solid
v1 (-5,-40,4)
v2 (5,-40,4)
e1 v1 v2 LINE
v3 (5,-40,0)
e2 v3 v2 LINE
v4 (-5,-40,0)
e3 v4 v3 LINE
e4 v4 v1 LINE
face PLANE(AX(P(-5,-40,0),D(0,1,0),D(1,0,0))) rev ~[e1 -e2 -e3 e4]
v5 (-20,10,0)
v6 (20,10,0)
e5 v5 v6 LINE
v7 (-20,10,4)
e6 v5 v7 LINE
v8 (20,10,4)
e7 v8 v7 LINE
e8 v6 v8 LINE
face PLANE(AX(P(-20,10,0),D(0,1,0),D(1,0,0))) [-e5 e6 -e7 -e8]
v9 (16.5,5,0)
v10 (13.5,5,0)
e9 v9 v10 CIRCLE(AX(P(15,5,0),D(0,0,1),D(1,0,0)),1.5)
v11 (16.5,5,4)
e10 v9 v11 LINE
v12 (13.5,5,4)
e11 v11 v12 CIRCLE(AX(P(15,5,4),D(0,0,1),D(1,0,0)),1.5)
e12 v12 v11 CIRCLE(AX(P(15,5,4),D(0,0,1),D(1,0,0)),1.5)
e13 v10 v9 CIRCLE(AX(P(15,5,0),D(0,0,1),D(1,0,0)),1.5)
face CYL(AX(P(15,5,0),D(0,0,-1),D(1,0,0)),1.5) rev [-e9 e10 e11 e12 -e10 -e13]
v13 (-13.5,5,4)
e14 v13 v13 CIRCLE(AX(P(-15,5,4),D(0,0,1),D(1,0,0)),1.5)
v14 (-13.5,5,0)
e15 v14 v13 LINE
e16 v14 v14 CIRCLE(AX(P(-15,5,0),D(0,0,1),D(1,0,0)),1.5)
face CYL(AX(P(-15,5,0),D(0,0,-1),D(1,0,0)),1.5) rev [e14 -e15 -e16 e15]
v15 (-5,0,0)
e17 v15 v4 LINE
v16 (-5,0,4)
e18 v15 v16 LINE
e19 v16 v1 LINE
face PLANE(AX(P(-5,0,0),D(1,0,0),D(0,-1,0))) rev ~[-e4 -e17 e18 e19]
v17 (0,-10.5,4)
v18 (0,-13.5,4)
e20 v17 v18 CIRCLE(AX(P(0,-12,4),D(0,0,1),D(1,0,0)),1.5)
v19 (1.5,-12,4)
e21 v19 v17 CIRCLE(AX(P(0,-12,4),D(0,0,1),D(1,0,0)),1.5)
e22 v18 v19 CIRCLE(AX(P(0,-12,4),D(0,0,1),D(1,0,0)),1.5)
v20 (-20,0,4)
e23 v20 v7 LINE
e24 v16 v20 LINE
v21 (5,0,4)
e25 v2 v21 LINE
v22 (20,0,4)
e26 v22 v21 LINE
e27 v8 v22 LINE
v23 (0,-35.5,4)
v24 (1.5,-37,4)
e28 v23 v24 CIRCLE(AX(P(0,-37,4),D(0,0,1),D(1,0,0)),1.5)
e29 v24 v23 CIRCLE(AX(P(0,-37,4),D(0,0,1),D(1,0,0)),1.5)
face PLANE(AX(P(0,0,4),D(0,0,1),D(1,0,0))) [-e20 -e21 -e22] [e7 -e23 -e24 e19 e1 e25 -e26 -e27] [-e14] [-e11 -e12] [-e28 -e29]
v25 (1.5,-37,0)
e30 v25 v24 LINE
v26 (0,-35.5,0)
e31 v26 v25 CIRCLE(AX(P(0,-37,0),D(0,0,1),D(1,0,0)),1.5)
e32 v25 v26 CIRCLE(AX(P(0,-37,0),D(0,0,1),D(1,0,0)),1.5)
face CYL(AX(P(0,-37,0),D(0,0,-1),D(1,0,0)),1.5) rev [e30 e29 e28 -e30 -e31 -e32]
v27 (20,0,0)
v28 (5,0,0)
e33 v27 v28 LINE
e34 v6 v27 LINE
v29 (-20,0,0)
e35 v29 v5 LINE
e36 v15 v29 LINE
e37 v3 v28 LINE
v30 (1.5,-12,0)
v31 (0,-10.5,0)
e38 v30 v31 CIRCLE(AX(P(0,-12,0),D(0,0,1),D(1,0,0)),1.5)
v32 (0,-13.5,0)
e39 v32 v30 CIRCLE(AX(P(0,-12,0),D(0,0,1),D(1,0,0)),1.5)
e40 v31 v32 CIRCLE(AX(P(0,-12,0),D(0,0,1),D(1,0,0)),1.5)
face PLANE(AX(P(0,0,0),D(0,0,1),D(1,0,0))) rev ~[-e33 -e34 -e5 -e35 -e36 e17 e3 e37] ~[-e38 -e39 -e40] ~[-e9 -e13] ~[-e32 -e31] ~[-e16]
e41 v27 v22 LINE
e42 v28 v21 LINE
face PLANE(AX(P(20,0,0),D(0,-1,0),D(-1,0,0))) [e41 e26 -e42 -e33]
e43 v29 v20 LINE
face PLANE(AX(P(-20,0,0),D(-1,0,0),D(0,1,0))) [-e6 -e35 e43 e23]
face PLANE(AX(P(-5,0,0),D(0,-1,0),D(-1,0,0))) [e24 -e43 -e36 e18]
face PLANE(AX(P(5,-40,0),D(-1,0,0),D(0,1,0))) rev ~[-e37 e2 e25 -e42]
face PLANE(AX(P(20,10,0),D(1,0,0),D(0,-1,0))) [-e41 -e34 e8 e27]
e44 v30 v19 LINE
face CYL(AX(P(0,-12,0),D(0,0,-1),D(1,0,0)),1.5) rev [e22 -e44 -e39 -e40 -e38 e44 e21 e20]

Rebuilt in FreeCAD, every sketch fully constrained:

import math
import FreeCAD as App
import Part
import Sketcher

V = App.Vector


def add_polygon(sketch, points):
    """Adds a closed chain of lines whose ends are joined by coincident constraints."""
    first, n = sketch.GeometryCount, len(points)
    for a, b in zip(points, points[1:] + points[:1]):
        sketch.addGeometry(Part.LineSegment(App.Vector(*a, 0), App.Vector(*b, 0)), False)
    for i in range(n):
        sketch.addConstraint(Sketcher.Constraint("Coincident", first + i, 2, first + (i + 1) % n, 1))

doc = App.newDocument("Part")
body = doc.addObject("PartDesign::Body", "Body")

# Sketch on XY plane
sketch1 = body.newObject("Sketcher::SketchObject", "Sketch")
sketch1.AttachmentSupport = (doc.getObject("XY_Plane"), [""])
sketch1.MapMode = "FlatFace"
add_polygon(sketch1, [(-20, 0), (-5, 0), (-5, -40), (5, -40), (5, 0), (20, 0), (20, 10), (-20, 10)])  # lines 0-7
sketch1.addGeometry(Part.Circle(V(-15, 5, 0), V(0, 0, 1), 1.5), False)  # 8
sketch1.addGeometry(Part.Circle(V(0, -37, 0), V(0, 0, 1), 1.5), False)  # 9
sketch1.addGeometry(Part.ArcOfCircle(Part.Circle(V(0, -12, 0), V(0, 0, 1), 1.5), math.radians(90), math.radians(270)), False)  # 10
sketch1.addGeometry(Part.ArcOfCircle(Part.Circle(V(0, -12, 0), V(0, 0, 1), 1.5), math.radians(-90), math.radians(90)), False)  # 11
sketch1.addGeometry(Part.Circle(V(15, 5, 0), V(0, 0, 1), 1.5), False)  # 12
sketch1.addConstraint([
    Sketcher.Constraint("Tangent", 10, 1, 11, 2),
    Sketcher.Constraint("Coincident", 11, 1, 10, 2),
    Sketcher.Constraint("Horizontal", 0),
    Sketcher.Constraint("Vertical", 1),
    Sketcher.Constraint("Horizontal", 2),
    Sketcher.Constraint("Vertical", 3),
    Sketcher.Constraint("Horizontal", 4),
    Sketcher.Constraint("Vertical", 5),
    Sketcher.Constraint("Horizontal", 6),
    Sketcher.Constraint("Vertical", 7),
    Sketcher.Constraint("Equal", 8, 9),
    Sketcher.Constraint("Equal", 9, 10),
    Sketcher.Constraint("Equal", 11, 12),
    Sketcher.Constraint("Symmetric", 0, 2, 3, 2, -1, 1),
    Sketcher.Constraint("Symmetric", 8, 3, 12, 3, -2),
    Sketcher.Constraint("Symmetric", 4, 2, 7, 2, -2),
    Sketcher.Constraint("PointOnObject", 9, 3, -2),
    Sketcher.Constraint("PointOnObject", 10, 3, -2),
    Sketcher.Constraint("PointOnObject", 10, 1, -2),
    Sketcher.Constraint("PointOnObject", 11, 1, -2),
    Sketcher.Constraint("Equal", 6, 1),
    Sketcher.Constraint("Equal", 2, 5),
    Sketcher.Constraint("Diameter", 8, 3.0),
    Sketcher.Constraint("DistanceX", 0, 1, 0, 2, 15.0),
    Sketcher.Constraint("DistanceX", 2, 1, 2, 2, 10.0),
    Sketcher.Constraint("DistanceX", 8, 3, -1, 1, 15.0),
    Sketcher.Constraint("DistanceY", -1, 1, 8, 3, 5.0),
    Sketcher.Constraint("DistanceY", 9, 3, -1, 1, 37.0),
    Sketcher.Constraint("DistanceY", 10, 3, -1, 1, 12.0),
])
pad1 = body.newObject("PartDesign::Pad", "Pad")
pad1.Profile = sketch1
pad1.Length = 4

doc.recompute()
